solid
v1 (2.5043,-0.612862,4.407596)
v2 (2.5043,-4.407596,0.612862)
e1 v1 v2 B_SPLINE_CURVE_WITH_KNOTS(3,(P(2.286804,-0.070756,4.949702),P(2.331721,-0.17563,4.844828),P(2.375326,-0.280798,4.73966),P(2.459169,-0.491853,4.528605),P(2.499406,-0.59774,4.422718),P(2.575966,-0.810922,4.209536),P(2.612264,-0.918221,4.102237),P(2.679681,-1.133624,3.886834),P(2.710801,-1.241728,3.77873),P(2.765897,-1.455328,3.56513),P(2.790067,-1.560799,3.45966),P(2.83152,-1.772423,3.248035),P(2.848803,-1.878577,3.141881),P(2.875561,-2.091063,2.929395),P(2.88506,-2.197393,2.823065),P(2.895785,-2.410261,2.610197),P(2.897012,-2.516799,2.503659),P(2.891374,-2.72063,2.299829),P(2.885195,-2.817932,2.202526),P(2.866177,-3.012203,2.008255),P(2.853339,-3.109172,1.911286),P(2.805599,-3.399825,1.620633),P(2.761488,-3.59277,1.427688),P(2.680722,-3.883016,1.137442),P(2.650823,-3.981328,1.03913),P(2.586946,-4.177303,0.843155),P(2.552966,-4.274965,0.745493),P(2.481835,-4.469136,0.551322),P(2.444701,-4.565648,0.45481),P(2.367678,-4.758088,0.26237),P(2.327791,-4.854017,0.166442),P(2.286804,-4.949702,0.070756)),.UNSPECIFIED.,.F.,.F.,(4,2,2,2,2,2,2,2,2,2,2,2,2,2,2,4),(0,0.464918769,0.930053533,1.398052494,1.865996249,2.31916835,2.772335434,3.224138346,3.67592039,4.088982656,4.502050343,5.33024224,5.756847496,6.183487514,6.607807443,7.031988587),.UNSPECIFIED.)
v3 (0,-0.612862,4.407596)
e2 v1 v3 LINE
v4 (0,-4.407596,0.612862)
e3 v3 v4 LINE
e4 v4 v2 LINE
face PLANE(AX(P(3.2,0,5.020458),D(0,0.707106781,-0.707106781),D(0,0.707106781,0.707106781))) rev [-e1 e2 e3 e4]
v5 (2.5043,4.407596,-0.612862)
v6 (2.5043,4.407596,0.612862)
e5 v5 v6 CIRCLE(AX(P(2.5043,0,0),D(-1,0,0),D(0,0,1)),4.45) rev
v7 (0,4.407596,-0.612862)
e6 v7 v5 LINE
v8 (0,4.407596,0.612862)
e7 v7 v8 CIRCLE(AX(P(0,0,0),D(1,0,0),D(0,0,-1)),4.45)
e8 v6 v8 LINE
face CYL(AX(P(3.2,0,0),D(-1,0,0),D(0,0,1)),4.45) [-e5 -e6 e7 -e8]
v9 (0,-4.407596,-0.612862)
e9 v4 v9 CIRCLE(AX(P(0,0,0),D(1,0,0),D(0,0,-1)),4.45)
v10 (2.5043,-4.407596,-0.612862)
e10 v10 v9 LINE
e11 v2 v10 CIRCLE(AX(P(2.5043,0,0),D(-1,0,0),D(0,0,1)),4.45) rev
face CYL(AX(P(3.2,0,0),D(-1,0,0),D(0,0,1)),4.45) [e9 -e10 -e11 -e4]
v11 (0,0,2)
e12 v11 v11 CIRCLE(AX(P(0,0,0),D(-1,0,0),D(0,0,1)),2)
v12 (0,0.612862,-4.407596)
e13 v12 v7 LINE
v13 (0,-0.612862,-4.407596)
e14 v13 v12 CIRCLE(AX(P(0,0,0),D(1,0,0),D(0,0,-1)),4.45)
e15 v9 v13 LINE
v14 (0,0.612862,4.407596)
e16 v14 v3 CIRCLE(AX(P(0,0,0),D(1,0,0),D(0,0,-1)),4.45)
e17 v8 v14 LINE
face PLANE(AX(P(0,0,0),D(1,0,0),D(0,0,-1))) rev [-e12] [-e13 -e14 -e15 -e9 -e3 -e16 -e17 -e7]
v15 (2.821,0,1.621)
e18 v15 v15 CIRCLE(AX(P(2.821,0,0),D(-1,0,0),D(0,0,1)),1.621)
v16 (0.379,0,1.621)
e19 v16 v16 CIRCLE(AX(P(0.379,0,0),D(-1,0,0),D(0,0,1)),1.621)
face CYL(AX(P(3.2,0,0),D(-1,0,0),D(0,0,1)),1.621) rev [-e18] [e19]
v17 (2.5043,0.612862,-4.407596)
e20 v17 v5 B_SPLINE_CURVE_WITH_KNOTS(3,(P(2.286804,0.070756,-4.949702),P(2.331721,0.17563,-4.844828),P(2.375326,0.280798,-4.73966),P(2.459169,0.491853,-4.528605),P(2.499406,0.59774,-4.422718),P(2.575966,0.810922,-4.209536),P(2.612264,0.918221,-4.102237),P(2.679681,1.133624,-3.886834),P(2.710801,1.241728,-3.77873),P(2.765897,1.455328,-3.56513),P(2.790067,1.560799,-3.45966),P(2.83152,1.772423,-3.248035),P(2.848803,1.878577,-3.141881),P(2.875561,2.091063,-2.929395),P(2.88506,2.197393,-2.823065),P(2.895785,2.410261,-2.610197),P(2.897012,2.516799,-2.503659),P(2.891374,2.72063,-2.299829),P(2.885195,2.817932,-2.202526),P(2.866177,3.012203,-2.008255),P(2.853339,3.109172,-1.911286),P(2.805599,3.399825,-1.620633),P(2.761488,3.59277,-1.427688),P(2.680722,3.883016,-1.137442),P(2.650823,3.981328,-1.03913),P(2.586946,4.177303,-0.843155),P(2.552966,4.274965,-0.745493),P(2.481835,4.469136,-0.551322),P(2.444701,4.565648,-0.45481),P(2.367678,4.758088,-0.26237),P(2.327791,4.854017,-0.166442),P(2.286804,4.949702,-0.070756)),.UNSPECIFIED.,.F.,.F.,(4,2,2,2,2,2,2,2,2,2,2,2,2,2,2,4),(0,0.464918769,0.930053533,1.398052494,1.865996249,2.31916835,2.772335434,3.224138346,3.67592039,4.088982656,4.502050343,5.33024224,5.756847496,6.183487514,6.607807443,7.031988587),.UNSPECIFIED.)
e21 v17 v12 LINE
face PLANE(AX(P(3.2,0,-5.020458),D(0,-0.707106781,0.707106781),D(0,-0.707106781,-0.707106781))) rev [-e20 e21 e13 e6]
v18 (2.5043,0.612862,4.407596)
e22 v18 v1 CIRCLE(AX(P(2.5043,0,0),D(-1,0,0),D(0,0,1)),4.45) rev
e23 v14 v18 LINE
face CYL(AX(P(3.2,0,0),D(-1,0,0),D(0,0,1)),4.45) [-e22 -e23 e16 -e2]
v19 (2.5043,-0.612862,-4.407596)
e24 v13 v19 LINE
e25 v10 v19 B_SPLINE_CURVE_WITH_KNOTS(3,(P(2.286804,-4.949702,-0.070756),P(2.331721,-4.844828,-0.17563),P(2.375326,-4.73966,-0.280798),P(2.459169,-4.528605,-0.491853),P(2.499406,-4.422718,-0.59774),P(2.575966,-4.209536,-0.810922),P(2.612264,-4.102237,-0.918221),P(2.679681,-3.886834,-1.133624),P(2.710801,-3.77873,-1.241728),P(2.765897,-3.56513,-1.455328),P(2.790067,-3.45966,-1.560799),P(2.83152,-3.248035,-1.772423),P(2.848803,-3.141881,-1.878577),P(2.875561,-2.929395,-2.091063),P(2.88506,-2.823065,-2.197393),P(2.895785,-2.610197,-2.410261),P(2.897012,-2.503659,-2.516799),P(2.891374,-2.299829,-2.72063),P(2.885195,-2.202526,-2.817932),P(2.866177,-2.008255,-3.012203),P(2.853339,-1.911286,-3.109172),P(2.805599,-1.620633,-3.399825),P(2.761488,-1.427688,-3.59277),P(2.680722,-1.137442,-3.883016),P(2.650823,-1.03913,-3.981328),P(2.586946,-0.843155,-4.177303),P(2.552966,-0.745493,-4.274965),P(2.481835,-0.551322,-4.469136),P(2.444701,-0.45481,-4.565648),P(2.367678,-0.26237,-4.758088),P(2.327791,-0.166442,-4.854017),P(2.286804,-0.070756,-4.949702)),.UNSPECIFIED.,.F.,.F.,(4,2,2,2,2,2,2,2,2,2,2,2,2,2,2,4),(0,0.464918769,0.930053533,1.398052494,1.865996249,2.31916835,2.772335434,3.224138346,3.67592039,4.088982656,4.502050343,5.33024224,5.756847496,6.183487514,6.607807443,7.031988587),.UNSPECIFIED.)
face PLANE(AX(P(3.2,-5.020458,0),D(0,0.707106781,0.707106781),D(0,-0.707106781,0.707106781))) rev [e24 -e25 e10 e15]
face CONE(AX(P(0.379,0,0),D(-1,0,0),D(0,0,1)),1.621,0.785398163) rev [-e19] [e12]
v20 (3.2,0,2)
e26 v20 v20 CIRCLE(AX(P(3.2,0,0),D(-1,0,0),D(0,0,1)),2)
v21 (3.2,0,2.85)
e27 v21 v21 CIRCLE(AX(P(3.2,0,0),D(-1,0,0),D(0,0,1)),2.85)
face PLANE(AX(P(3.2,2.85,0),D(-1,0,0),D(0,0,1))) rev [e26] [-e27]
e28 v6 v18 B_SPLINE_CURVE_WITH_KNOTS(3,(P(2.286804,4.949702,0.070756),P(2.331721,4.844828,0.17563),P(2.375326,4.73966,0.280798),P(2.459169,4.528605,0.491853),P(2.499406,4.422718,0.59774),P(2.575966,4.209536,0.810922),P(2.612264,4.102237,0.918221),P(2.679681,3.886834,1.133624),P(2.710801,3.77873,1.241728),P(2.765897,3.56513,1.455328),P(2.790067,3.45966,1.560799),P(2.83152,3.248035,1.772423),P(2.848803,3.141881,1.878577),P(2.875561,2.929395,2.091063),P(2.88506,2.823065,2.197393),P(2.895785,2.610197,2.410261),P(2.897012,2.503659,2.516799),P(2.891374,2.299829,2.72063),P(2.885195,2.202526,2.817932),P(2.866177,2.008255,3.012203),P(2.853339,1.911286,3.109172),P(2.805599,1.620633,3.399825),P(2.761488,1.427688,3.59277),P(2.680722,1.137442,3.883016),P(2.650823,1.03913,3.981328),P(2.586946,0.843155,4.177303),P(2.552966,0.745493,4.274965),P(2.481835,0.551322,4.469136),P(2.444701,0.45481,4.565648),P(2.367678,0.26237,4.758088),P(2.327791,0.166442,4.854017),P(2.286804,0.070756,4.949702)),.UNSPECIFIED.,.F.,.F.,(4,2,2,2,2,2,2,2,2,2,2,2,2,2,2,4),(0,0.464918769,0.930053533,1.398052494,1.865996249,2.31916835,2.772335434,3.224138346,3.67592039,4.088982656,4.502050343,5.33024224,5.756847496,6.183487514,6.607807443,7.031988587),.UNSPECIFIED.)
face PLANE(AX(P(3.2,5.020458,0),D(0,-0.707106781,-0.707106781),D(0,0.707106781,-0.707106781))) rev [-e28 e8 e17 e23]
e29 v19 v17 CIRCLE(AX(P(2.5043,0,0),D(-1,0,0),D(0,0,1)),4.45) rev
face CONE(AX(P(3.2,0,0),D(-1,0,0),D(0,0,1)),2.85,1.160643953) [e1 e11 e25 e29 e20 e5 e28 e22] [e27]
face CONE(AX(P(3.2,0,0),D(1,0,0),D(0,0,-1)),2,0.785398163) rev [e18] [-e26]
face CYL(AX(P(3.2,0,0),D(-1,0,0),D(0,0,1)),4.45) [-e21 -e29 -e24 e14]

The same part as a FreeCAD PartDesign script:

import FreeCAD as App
import Part
import Sketcher

V = App.Vector
Q = App.Units.Quantity


def add_polygon(sketch, points):
    """Adds a closed chain of lines whose ends are joined by coincident constraints."""
    first, n = sketch.GeometryCount, len(points)
    for a, b in zip(points, points[1:] + points[:1]):
        sketch.addGeometry(Part.LineSegment(App.Vector(*a, 0), App.Vector(*b, 0)), False)
    for i in range(n):
        sketch.addConstraint(Sketcher.Constraint("Coincident", first + i, 2, first + (i + 1) % n, 1))

doc = App.newDocument("Part")
body = doc.addObject("PartDesign::Body", "Body")

# Sketch on XY plane
sketch1 = body.newObject("Sketcher::SketchObject", "Sketch")
sketch1.AttachmentSupport = (doc.getObject("XY_Plane"), [""])
sketch1.MapMode = "FlatFace"
add_polygon(sketch1, [(0, 4.9), (0, 0), (3.2, 0), (3.2, 2.9), (2.3, 4.9)])  # lines 0-4
sketch1.addConstraint([
    Sketcher.Constraint("Vertical", 0),
    Sketcher.Constraint("Horizontal", 1),
    Sketcher.Constraint("Vertical", 2),
    Sketcher.Constraint("Horizontal", 4),
    Sketcher.Constraint("Coincident", 0, 2, -1, 1),
    Sketcher.Constraint("DistanceX", 1, 1, 1, 2, 3.2),
    Sketcher.Constraint("Angle", 3, Q("113.5 deg")),
    Sketcher.Constraint("DistanceY", 2, 1, 2, 2, 2.85),
    Sketcher.Constraint("Distance", 3, 2.289651),
])
revolution = body.newObject("PartDesign::Revolution", "Revolution")
revolution.Profile = sketch1
revolution.ReferenceAxis = (sketch1, ["H_Axis"])
revolution.Angle = 360

# Sketch on YZ plane
sketch2 = body.newObject("Sketcher::SketchObject", "Sketch001")
sketch2.AttachmentSupport = (doc.getObject("YZ_Plane"), [""])
sketch2.MapMode = "FlatFace"
add_polygon(sketch2, [(14, 14), (-14, 14), (-14, -14), (14, -14)])  # lines 0-3
add_polygon(sketch2, [(-5, 0), (0, 5), (5, 0), (0, -5)])  # lines 4-7
sketch2.addConstraint([
    Sketcher.Constraint("Horizontal", 0),
    Sketcher.Constraint("Vertical", 1),
    Sketcher.Constraint("Horizontal", 2),
    Sketcher.Constraint("Vertical", 3),
    Sketcher.Constraint("Symmetric", 0, 2, 2, 2, -1, 1),
    Sketcher.Constraint("Symmetric", 4, 2, 6, 2, -1, 1),
    Sketcher.Constraint("Symmetric", 5, 2, 7, 2, -1, 1),
    Sketcher.Constraint("PointOnObject", 4, 2, -2),
    Sketcher.Constraint("PointOnObject", 5, 2, -1),
    Sketcher.Constraint("Perpendicular", 4, 5),
    Sketcher.Constraint("Equal", 2, 1),
    Sketcher.Constraint("DistanceX", 0, 2, 0, 1, 28.0),
    Sketcher.Constraint("Distance", 4, 7.1),
])
pocket1 = body.newObject("PartDesign::Pocket", "Pocket")
pocket1.Profile = sketch2
pocket1.Length = 3.2
pocket1.Reversed = True

# Sketch on XY plane
sketch3 = body.newObject("Sketcher::SketchObject", "Sketch002")
sketch3.AttachmentSupport = (doc.getObject("XY_Plane"), [""])
sketch3.MapMode = "FlatFace"
add_polygon(sketch3, [(0, 2), (0, 0), (3.2, 0), (3.2, 2), (2.8, 1.6), (0.4, 1.6)])  # lines 0-5
sketch3.addConstraint([
    Sketcher.Constraint("Vertical", 0),
    Sketcher.Constraint("Horizontal", 1),
    Sketcher.Constraint("Vertical", 2),
    Sketcher.Constraint("Horizontal", 4),
    Sketcher.Constraint("Coincident", 0, 2, -1, 1),
    Sketcher.Constraint("Perpendicular", 3, 5),
    Sketcher.Constraint("Horizontal", 2, 2, 5, 2),
    Sketcher.Constraint("Equal", 3, 5),
    Sketcher.Constraint("DistanceY", 0, 2, 0, 1, 2.0),
    Sketcher.Constraint("DistanceX", 1, 1, 1, 2, 3.2),
    Sketcher.Constraint("DistanceX", 4, 2, 4, 1, 2.442),
])
groove = body.newObject("PartDesign::Groove", "Groove")
groove.Profile = sketch3
groove.ReferenceAxis = (sketch3, ["H_Axis"])
groove.Angle = 360

# Sketch on YZ plane
sketch4 = body.newObject("Sketcher::SketchObject", "Sketch003")
sketch4.AttachmentSupport = (doc.getObject("YZ_Plane"), [""])
sketch4.MapMode = "FlatFace"
add_polygon(sketch4, [(7, 7), (-7, 7), (-7, -7), (7, -7)])  # lines 0-3
sketch4.addGeometry(Part.Circle(V(0, 0, 0), V(0, 0, 1), 4.5), False)  # 4
sketch4.addConstraint([
    Sketcher.Constraint("Horizontal", 0),
    Sketcher.Constraint("Vertical", 1),
    Sketcher.Constraint("Horizontal", 2),
    Sketcher.Constraint("Vertical", 3),
    Sketcher.Constraint("Coincident", 4, 3, -1, 1),
    Sketcher.Constraint("Symmetric", 0, 2, 2, 2, -1, 1),
    Sketcher.Constraint("Equal", 2, 1),
    Sketcher.Constraint("Diameter", 4, 8.9),
    Sketcher.Constraint("DistanceX", 0, 2, 0, 1, 14.0),
])
pocket2 = body.newObject("PartDesign::Pocket", "Pocket001")
pocket2.Profile = sketch4
pocket2.Length = 3.2
pocket2.Reversed = True

doc.recompute()
